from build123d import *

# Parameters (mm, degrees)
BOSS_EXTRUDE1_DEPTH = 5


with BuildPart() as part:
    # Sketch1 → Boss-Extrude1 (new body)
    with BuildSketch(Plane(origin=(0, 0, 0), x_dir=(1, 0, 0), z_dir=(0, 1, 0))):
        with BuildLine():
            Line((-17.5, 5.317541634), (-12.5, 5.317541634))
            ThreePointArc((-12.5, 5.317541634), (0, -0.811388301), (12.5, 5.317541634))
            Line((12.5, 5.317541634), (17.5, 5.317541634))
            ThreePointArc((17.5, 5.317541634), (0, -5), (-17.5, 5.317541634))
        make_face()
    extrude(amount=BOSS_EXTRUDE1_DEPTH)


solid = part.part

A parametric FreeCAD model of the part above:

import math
import FreeCAD as App
import Part
import Sketcher

doc = App.newDocument("Part")
params = doc.addObject("Spreadsheet::Sheet", "Params")
for row, (alias, value) in enumerate([
    ("sketch1_radius", "20 mm"),
    ("sketch1_width", "5 mm"),
    ("pad1_length", "5 mm"),
], start=1):
    params.set(f"A{row}", alias)
    params.set(f"B{row}", "=" + value)
    params.setAlias(f"B{row}", alias)

body = doc.addObject("PartDesign::Body", "Body")

# Sketch on XZ plane
sketch1 = body.newObject("Sketcher::SketchObject", "Sketch")
sketch1.AttachmentSupport = (doc.getObject("XZ_Plane"), [""])
sketch1.MapMode = "FlatFace"
sketch1.addGeometry([
    Part.LineSegment(App.Vector(-12.5, -5.317542, 0), App.Vector(-17.5, -5.317542, 0)),
    Part.ArcOfCircle(Part.Circle(App.Vector(0, -15, 0), App.Vector(0, 0, 1), 20), math.radians(28.955024), math.radians(151.044976)),
    Part.LineSegment(App.Vector(17.5, -5.317542, 0), App.Vector(12.5, -5.317542, 0)),
    Part.ArcOfCircle(Part.Circle(App.Vector(0, -15, 0), App.Vector(0, 0, 1), 15.811388), math.radians(37.761244), math.radians(142.238756)),
], False)
sketch1.addConstraint([
    Sketcher.Constraint("Coincident", 0, 2, 1, 2),
    Sketcher.Constraint("Coincident", 1, 1, 2, 1),
    Sketcher.Constraint("Coincident", 2, 2, 3, 1),
    Sketcher.Constraint("Coincident", 3, 2, 0, 1),
    Sketcher.Constraint("Horizontal", 0),
    Sketcher.Constraint("Horizontal", 2),
    Sketcher.Constraint("Coincident", 3, 3, 1, 3),
    Sketcher.Constraint("Symmetric", 0, 2, 1, 1, -2),
    Sketcher.Constraint("Radius", 1, 20.0),
    Sketcher.Constraint("DistanceX", 0, 2, 0, 1, 5.0),
    Sketcher.Constraint("DistanceY", 1, 3, -1, 1, 15.0),
    Sketcher.Constraint("DistanceX", 0, 2, 1, 1, 35.0),
])
sketch1.setExpression("Constraints[8]", "Params.sketch1_radius")
sketch1.setExpression("Constraints[9]", "Params.sketch1_width")
pad1 = body.newObject("PartDesign::Pad", "Pad")
pad1.Profile = sketch1
pad1.setExpression("Length", "Params.pad1_length")
pad1.Reversed = True

doc.recompute()
